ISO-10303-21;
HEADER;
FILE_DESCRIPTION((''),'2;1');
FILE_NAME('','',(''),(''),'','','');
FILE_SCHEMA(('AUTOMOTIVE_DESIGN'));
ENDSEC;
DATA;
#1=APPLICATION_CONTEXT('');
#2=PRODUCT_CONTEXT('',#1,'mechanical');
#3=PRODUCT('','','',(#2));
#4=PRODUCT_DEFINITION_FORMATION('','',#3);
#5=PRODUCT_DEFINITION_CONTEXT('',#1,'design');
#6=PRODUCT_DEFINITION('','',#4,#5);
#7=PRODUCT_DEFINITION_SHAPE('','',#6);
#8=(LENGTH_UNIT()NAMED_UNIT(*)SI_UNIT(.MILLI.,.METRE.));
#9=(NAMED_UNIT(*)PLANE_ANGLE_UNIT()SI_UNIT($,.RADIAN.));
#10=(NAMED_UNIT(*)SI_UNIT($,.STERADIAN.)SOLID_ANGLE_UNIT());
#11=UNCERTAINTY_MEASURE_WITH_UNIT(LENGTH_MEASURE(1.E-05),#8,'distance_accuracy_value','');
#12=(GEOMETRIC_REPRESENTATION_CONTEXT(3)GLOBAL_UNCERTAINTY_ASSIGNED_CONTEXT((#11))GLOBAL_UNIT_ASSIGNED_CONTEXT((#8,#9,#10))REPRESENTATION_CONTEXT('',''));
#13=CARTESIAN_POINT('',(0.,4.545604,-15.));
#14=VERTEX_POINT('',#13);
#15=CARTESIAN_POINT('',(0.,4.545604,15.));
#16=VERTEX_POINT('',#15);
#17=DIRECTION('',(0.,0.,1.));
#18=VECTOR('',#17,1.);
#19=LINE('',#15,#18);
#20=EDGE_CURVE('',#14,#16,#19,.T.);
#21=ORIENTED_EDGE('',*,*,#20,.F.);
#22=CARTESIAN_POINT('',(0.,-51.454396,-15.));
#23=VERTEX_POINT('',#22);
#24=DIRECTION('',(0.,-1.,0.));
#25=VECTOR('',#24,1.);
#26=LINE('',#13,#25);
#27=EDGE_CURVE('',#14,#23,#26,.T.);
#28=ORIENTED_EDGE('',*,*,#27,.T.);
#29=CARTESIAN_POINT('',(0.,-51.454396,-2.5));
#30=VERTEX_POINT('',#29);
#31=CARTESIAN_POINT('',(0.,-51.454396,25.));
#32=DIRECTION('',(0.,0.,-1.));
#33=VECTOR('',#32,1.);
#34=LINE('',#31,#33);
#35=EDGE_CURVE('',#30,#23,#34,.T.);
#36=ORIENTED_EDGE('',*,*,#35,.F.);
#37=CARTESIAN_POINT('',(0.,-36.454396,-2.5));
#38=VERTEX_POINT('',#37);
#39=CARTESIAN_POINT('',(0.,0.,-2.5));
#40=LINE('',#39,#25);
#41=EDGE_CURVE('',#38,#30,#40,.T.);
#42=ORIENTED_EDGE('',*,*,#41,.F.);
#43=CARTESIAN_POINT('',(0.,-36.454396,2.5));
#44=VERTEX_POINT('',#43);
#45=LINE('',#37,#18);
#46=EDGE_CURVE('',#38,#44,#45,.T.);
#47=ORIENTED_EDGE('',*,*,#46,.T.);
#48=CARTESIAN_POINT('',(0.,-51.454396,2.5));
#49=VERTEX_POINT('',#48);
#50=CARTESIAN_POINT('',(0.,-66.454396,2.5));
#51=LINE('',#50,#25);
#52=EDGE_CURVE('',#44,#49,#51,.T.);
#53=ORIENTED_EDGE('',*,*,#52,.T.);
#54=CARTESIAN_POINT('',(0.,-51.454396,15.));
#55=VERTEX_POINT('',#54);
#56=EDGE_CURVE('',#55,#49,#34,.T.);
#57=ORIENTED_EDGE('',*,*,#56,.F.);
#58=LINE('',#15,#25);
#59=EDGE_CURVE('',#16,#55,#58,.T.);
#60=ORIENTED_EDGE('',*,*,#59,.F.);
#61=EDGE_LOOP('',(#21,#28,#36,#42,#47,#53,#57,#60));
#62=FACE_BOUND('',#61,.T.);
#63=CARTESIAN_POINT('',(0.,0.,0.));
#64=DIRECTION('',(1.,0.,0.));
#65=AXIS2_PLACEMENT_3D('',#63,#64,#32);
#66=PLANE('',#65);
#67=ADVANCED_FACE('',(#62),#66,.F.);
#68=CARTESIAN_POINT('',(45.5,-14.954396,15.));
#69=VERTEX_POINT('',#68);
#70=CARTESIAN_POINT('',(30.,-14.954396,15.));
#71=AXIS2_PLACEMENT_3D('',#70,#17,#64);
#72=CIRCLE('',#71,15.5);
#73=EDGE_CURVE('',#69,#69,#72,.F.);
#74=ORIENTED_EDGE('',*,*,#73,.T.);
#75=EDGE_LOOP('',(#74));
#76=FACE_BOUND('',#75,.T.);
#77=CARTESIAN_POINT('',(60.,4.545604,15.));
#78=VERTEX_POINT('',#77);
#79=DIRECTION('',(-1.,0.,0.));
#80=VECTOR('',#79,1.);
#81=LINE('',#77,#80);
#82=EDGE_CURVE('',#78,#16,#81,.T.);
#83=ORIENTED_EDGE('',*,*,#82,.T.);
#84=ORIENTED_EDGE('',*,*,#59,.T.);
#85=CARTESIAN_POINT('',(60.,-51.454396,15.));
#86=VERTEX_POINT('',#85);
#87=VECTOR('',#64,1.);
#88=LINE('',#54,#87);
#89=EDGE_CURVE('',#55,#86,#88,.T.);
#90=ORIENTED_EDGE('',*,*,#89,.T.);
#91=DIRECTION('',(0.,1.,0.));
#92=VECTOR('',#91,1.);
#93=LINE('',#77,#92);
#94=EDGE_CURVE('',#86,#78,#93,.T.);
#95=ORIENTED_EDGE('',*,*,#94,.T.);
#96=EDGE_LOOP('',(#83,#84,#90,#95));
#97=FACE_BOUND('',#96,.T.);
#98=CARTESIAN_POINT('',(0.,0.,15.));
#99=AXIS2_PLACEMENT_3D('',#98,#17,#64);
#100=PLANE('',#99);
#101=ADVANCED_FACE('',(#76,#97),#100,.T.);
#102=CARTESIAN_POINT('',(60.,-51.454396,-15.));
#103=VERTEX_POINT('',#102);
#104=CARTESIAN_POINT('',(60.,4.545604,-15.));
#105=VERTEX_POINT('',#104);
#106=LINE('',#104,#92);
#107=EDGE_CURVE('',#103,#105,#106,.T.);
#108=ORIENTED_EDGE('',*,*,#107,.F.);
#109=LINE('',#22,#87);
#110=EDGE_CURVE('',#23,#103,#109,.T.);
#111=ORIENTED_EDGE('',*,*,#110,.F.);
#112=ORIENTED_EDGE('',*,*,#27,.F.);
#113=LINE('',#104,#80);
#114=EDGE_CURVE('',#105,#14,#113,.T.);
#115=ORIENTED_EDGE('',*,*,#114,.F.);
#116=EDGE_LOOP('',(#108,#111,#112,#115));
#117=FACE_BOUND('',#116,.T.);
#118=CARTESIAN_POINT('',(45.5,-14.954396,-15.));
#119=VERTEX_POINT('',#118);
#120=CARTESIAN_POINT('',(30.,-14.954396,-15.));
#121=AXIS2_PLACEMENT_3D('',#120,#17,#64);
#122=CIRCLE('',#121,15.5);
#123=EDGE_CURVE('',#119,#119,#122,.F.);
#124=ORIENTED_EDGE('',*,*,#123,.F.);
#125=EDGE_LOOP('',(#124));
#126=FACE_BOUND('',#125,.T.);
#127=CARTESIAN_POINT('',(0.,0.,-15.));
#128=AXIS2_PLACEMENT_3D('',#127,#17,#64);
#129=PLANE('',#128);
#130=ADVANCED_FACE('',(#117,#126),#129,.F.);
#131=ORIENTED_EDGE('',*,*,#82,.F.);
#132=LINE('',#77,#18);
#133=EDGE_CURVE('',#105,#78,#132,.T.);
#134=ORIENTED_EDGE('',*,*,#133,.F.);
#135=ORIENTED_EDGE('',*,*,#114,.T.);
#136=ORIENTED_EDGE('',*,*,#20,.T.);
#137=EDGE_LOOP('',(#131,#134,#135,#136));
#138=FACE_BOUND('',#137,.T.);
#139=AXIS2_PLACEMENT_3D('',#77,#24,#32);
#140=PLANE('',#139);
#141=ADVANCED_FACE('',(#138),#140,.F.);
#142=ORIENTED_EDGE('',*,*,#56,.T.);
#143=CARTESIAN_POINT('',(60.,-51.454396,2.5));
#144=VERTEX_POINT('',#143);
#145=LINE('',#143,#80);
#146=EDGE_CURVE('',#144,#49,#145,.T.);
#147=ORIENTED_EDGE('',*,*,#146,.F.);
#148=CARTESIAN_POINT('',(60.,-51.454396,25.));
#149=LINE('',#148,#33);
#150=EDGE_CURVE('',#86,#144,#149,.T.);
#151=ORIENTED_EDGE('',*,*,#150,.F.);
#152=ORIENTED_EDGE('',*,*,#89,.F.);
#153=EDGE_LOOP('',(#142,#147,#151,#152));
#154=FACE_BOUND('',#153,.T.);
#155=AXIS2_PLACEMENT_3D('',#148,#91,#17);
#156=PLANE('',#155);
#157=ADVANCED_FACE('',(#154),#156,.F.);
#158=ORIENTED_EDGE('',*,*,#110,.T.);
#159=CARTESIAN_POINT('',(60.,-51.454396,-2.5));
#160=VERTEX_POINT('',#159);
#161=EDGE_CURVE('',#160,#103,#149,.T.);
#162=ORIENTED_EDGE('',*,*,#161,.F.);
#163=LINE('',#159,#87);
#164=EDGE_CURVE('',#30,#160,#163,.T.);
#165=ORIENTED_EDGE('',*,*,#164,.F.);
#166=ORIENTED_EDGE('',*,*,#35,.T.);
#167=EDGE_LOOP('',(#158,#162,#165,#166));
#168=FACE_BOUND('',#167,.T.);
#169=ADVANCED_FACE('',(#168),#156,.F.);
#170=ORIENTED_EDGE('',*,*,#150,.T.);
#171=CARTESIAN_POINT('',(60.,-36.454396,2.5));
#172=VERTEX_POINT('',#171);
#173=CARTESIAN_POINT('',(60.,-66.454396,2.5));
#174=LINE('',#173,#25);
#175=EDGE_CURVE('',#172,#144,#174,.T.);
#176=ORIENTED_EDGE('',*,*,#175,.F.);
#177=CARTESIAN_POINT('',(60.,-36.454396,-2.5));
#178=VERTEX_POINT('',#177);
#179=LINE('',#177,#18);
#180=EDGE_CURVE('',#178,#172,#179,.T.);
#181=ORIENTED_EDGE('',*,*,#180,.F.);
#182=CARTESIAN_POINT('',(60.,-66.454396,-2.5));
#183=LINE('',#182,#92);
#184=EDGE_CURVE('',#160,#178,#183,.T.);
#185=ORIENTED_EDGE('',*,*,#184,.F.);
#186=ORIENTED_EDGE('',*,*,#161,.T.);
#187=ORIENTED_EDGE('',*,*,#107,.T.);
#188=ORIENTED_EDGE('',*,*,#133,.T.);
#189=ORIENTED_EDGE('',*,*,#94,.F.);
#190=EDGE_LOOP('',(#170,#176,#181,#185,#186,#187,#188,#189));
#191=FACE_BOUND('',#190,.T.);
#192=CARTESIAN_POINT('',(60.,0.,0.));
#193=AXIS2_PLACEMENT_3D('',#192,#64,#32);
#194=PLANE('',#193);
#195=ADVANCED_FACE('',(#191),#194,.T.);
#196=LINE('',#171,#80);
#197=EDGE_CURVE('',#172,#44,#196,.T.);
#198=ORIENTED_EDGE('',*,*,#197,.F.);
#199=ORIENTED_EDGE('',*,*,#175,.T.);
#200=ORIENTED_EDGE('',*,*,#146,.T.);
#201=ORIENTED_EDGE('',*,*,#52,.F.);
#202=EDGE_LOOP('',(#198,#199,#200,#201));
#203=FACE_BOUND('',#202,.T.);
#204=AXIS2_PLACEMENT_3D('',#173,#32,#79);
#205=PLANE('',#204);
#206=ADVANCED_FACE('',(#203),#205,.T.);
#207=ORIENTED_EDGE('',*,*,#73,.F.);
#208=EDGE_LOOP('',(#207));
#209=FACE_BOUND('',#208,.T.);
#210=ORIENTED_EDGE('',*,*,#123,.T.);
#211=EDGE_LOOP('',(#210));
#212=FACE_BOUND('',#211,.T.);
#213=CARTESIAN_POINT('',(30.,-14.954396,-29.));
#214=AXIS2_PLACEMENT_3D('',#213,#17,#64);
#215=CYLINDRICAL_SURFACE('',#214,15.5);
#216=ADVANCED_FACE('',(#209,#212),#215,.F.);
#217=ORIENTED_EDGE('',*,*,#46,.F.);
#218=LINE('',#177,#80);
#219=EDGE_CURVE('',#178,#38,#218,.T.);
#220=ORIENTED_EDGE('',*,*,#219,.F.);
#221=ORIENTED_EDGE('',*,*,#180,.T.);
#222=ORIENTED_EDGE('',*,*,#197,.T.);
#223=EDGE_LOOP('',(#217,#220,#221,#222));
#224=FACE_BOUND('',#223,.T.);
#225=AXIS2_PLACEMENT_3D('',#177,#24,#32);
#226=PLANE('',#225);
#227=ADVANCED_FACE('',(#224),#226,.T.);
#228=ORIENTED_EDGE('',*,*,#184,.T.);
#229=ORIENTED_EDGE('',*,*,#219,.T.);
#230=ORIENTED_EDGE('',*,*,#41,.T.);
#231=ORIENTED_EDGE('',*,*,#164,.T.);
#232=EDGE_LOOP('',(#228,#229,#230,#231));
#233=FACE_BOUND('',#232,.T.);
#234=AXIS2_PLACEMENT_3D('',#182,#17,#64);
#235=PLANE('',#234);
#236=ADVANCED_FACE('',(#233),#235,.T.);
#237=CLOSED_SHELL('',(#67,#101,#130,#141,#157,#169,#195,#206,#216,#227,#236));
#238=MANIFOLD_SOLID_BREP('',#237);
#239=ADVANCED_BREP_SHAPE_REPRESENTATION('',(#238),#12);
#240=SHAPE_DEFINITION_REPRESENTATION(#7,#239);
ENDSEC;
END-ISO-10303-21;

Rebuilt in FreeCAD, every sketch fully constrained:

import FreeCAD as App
import Part
import Sketcher
Q = App.Units.Quantity

doc = App.newDocument("Part")
body = doc.addObject("PartDesign::Body", "Body")

# Sketch on YZ plane
sketch1 = body.newObject("Sketcher::SketchObject", "Sketch")
sketch1.AttachmentSupport = (doc.getObject("YZ_Plane"), [""])
sketch1.MapMode = "FlatFace"
sketch1.addGeometry(Part.LineSegment(App.Vector(-51.454396, 25, 0), App.Vector(-51.454396, -25, 0)), False)
sketch1.addGeometry(Part.LineSegment(App.Vector(-51.454396, -25, 0), App.Vector(4.545604, -15, 0)), False)
sketch1.addGeometry(Part.LineSegment(App.Vector(4.545604, -15, 0), App.Vector(4.545604, 15, 0)), False)
sketch1.addGeometry(Part.LineSegment(App.Vector(4.545604, 15, 0), App.Vector(-51.454396, 25, 0)), False)
sketch1.addConstraint(Sketcher.Constraint("Coincident", 0, 2, 1, 1))
sketch1.addConstraint(Sketcher.Constraint("Coincident", 1, 2, 2, 1))
sketch1.addConstraint(Sketcher.Constraint("Coincident", 2, 2, 3, 1))
sketch1.addConstraint(Sketcher.Constraint("Coincident", 3, 2, 0, 1))
sketch1.addConstraint(Sketcher.Constraint("Vertical", 0))
sketch1.addConstraint(Sketcher.Constraint("Vertical", 2))
sketch1.addConstraint(Sketcher.Constraint("Equal", 1, 3))
sketch1.addConstraint(Sketcher.Constraint("DistanceY", 0, 2, 0, 1, Q("50 mm")))
sketch1.addConstraint(Sketcher.Constraint("DistanceY", 2, 1, 2, 2, Q("30 mm")))
sketch1.addConstraint(Sketcher.Constraint("DistanceY", 0, 2, -1, 1, Q("25 mm")))
sketch1.addConstraint(Sketcher.Constraint("DistanceX", 0, 2, 1, 2, Q("56 mm")))
sketch1.addConstraint(Sketcher.Constraint("DistanceX", 0, 2, -1, 1, Q("51.454396 mm")))
pad1 = body.newObject("PartDesign::Pad", "Pad")
pad1.Profile = sketch1
pad1.Length = 60

# Sketch on XY plane
sketch2 = body.newObject("Sketcher::SketchObject", "Sketch001")
sketch2.AttachmentSupport = (doc.getObject("XY_Plane"), [""])
sketch2.MapMode = "FlatFace"
sketch2.addGeometry(Part.Circle(App.Vector(30, -14.954396, 0), App.Vector(0, 0, 1), 15.5), False)
sketch2.addConstraint(Sketcher.Constraint("Diameter", 0, Q("31 mm")))
sketch2.addConstraint(Sketcher.Constraint("DistanceX", -1, 1, 0, 3, Q("30 mm")))
sketch2.addConstraint(Sketcher.Constraint("DistanceY", 0, 3, -1, 1, Q("14.954396 mm")))
pocket1 = body.newObject("PartDesign::Pocket", "Pocket")
pocket1.Profile = sketch2
pocket1.Type = "ThroughAll"
pocket1.Midplane = True

# Sketch on YZ plane
sketch3 = body.newObject("Sketcher::SketchObject", "Sketch002")
sketch3.AttachmentSupport = (doc.getObject("YZ_Plane"), [""])
sketch3.MapMode = "FlatFace"
sketch3.addGeometry(Part.LineSegment(App.Vector(-36.454396, 2.5, 0), App.Vector(-66.454396, 2.5, 0)), False)
sketch3.addGeometry(Part.LineSegment(App.Vector(-66.454396, 2.5, 0), App.Vector(-66.454396, -2.5, 0)), False)
sketch3.addGeometry(Part.LineSegment(App.Vector(-66.454396, -2.5, 0), App.Vector(-36.454396, -2.5, 0)), False)
sketch3.addGeometry(Part.LineSegment(App.Vector(-36.454396, -2.5, 0), App.Vector(-36.454396, 2.5, 0)), False)
sketch3.addConstraint(Sketcher.Constraint("Coincident", 0, 2, 1, 1))
sketch3.addConstraint(Sketcher.Constraint("Coincident", 1, 2, 2, 1))
sketch3.addConstraint(Sketcher.Constraint("Coincident", 2, 2, 3, 1))
sketch3.addConstraint(Sketcher.Constraint("Coincident", 3, 2, 0, 1))
sketch3.addConstraint(Sketcher.Constraint("Horizontal", 0))
sketch3.addConstraint(Sketcher.Constraint("Vertical", 1))
sketch3.addConstraint(Sketcher.Constraint("Horizontal", 2))
sketch3.addConstraint(Sketcher.Constraint("Vertical", 3))
sketch3.addConstraint(Sketcher.Constraint("DistanceX", 0, 2, 0, 1, Q("30 mm")))
sketch3.addConstraint(Sketcher.Constraint("DistanceY", 1, 2, 1, 1, Q("5 mm")))
sketch3.addConstraint(Sketcher.Constraint("DistanceY", -1, 1, 0, 2, Q("2.5 mm")))
sketch3.addConstraint(Sketcher.Constraint("DistanceX", 0, 2, -1, 1, Q("66.454396 mm")))
pocket2 = body.newObject("PartDesign::Pocket", "Pocket001")
pocket2.Profile = sketch3
pocket2.Type = "ThroughAll"
pocket2.Reversed = True

# Sketch on XY plane
sketch4 = body.newObject("Sketcher::SketchObject", "Sketch003")
sketch4.AttachmentSupport = (doc.getObject("XY_Plane"), [""])
sketch4.MapMode = "FlatFace"
sketch4.AttachmentOffset = App.Placement(App.Vector(0, 0, 25), App.Rotation())
sketch4.addGeometry(Part.LineSegment(App.Vector(0, 4.545604, 0), App.Vector(0, -51.454396, 0)), False)
sketch4.addGeometry(Part.LineSegment(App.Vector(0, -51.454396, 0), App.Vector(60, -51.454396, 0)), False)
sketch4.addGeometry(Part.LineSegment(App.Vector(60, -51.454396, 0), App.Vector(60, 4.545604, 0)), False)
sketch4.addGeometry(Part.LineSegment(App.Vector(60, 4.545604, 0), App.Vector(0, 4.545604, 0)), False)
sketch4.addConstraint(Sketcher.Constraint("Coincident", 0, 2, 1, 1))
sketch4.addConstraint(Sketcher.Constraint("Coincident", 1, 2, 2, 1))
sketch4.addConstraint(Sketcher.Constraint("Coincident", 2, 2, 3, 1))
sketch4.addConstraint(Sketcher.Constraint("Coincident", 3, 2, 0, 1))
sketch4.addConstraint(Sketcher.Constraint("Vertical", 0))
sketch4.addConstraint(Sketcher.Constraint("Horizontal", 1))
sketch4.addConstraint(Sketcher.Constraint("Vertical", 2))
sketch4.addConstraint(Sketcher.Constraint("Horizontal", 3))
sketch4.addConstraint(Sketcher.Constraint("PointOnObject", 0, 2, -2))
sketch4.addConstraint(Sketcher.Constraint("DistanceX", 1, 1, 1, 2, Q("60 mm")))
sketch4.addConstraint(Sketcher.Constraint("DistanceY", 0, 2, 0, 1, Q("56 mm")))
sketch4.addConstraint(Sketcher.Constraint("DistanceY", 0, 2, -1, 1, Q("51.454396 mm")))
pocket3 = body.newObject("PartDesign::Pocket", "Pocket002")
pocket3.Profile = sketch4
pocket3.Length = 10

# Sketch on XY plane
sketch5 = body.newObject("Sketcher::SketchObject", "Sketch004")
sketch5.AttachmentSupport = (doc.getObject("XY_Plane"), [""])
sketch5.MapMode = "FlatFace"
sketch5.AttachmentOffset = App.Placement(App.Vector(0, 0, -15), App.Rotation())
sketch5.addGeometry(Part.LineSegment(App.Vector(0, 4.545604, 0), App.Vector(0, -51.454396, 0)), False)
sketch5.addGeometry(Part.LineSegment(App.Vector(0, -51.454396, 0), App.Vector(60, -51.454396, 0)), False)
sketch5.addGeometry(Part.LineSegment(App.Vector(60, -51.454396, 0), App.Vector(60, 4.545604, 0)), False)
sketch5.addGeometry(Part.LineSegment(App.Vector(60, 4.545604, 0), App.Vector(0, 4.545604, 0)), False)
sketch5.addConstraint(Sketcher.Constraint("Coincident", 0, 2, 1, 1))
sketch5.addConstraint(Sketcher.Constraint("Coincident", 1, 2, 2, 1))
sketch5.addConstraint(Sketcher.Constraint("Coincident", 2, 2, 3, 1))
sketch5.addConstraint(Sketcher.Constraint("Coincident", 3, 2, 0, 1))
sketch5.addConstraint(Sketcher.Constraint("Vertical", 0))
sketch5.addConstraint(Sketcher.Constraint("Horizontal", 1))
sketch5.addConstraint(Sketcher.Constraint("Vertical", 2))
sketch5.addConstraint(Sketcher.Constraint("Horizontal", 3))
sketch5.addConstraint(Sketcher.Constraint("PointOnObject", 0, 2, -2))
sketch5.addConstraint(Sketcher.Constraint("DistanceX", 1, 1, 1, 2, Q("60 mm")))
sketch5.addConstraint(Sketcher.Constraint("DistanceY", 0, 2, 0, 1, Q("56 mm")))
sketch5.addConstraint(Sketcher.Constraint("DistanceY", 0, 2, -1, 1, Q("51.454396 mm")))
pocket4 = body.newObject("PartDesign::Pocket", "Pocket003")
pocket4.Profile = sketch5
pocket4.Length = 10

doc.recompute()
